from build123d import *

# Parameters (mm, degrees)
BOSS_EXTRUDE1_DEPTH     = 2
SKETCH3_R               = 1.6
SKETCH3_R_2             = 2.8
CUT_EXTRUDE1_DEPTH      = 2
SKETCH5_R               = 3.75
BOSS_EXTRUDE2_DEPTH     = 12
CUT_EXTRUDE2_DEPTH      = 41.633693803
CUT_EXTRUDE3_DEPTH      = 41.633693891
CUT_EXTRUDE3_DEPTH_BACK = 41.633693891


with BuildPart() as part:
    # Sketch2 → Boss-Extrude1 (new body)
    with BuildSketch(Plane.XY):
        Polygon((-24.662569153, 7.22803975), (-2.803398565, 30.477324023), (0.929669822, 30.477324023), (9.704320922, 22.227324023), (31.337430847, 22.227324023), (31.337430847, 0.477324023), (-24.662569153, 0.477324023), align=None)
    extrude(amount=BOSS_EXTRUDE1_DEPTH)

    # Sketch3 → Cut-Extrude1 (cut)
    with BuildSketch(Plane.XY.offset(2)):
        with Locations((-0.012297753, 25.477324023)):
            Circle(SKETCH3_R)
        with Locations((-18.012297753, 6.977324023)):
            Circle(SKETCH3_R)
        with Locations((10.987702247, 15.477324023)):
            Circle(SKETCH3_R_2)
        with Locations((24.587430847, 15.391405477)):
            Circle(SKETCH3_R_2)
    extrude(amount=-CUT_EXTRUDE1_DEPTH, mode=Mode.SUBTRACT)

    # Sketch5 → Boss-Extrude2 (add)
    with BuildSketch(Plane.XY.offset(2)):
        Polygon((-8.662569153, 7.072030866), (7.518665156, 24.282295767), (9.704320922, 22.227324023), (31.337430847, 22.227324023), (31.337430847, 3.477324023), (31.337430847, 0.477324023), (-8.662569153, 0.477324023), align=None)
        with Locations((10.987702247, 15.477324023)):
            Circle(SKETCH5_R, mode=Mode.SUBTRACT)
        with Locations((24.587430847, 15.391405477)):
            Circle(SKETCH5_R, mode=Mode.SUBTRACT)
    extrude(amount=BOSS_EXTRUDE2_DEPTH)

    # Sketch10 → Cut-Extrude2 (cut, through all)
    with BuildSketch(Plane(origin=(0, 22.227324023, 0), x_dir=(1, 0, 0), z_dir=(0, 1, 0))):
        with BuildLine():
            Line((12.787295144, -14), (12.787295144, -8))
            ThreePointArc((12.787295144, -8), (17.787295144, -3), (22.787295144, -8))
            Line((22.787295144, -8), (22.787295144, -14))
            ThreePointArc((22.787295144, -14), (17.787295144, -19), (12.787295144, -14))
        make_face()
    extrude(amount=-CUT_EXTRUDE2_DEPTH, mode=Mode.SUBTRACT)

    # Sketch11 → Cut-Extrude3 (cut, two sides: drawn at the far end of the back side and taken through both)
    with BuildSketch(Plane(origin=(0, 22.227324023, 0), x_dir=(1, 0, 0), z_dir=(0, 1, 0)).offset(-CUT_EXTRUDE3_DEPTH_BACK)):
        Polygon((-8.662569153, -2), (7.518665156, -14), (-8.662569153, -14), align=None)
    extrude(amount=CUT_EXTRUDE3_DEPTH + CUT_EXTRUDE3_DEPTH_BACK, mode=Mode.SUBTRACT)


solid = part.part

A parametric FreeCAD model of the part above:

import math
import FreeCAD as App
import Part
import Sketcher
Q = App.Units.Quantity


def add_polygon(sketch, points):
    """Adds a closed chain of lines whose ends are joined by coincident constraints."""
    first, n = sketch.GeometryCount, len(points)
    for a, b in zip(points, points[1:] + points[:1]):
        sketch.addGeometry(Part.LineSegment(App.Vector(*a, 0), App.Vector(*b, 0)), False)
    for i in range(n):
        sketch.addConstraint(Sketcher.Constraint("Coincident", first + i, 2, first + (i + 1) % n, 1))

doc = App.newDocument("Part")
body = doc.addObject("PartDesign::Body", "Body")

# Sketch on XY plane
sketch1 = doc.addObject("Sketcher::SketchObject", "Sketch")
body.addObject(sketch1)
sketch1.AttachmentSupport = (doc.XY_Plane, [""])
sketch1.MapMode = "FlatFace"
add_polygon(sketch1, [(-2.803399, 30.477324), (-24.662569, 7.22804), (-24.662569, 0.477324), (31.337431, 0.477324), (31.337431, 22.227324), (9.704321, 22.227324), (0.92967, 30.477324)])  # lines 0-6
sketch1.addConstraint(Sketcher.Constraint("Vertical", 1))
sketch1.addConstraint(Sketcher.Constraint("Horizontal", 2))
sketch1.addConstraint(Sketcher.Constraint("Vertical", 3))
sketch1.addConstraint(Sketcher.Constraint("Horizontal", 4))
sketch1.addConstraint(Sketcher.Constraint("Horizontal", 6))
sketch1.addConstraint(Sketcher.Constraint("Perpendicular", 0, 5))
sketch1.addConstraint(Sketcher.Constraint("DistanceX", 2, 1, 2, 2, Q("56 mm")))
sketch1.addConstraint(Sketcher.Constraint("DistanceY", 1, 2, 5, 2, Q("30 mm")))
sketch1.addConstraint(Sketcher.Constraint("DistanceY", 3, 1, 3, 2, Q("21.75 mm")))
sketch1.addConstraint(Sketcher.Constraint("DistanceX", 4, 2, 4, 1, Q("21.63311 mm")))
sketch1.addConstraint(Sketcher.Constraint("DistanceX", 6, 2, 6, 1, Q("3.733068 mm")))
sketch1.addConstraint(Sketcher.Constraint("DistanceX", 6, 2, -1, 1, Q("2.803399 mm")))
sketch1.addConstraint(Sketcher.Constraint("Distance", 5, Q("12.043961 mm")))
sketch1.addConstraint(Sketcher.Constraint("DistanceY", -1, 1, 0, 2, Q("7.22804 mm")))
pad1 = doc.addObject("PartDesign::Pad", "Pad")
body.addObject(pad1)
pad1.Profile = sketch1
pad1.Length = 2

# Sketch on XY plane
sketch2 = doc.addObject("Sketcher::SketchObject", "Sketch001")
body.addObject(sketch2)
sketch2.AttachmentSupport = (doc.XY_Plane, [""])
sketch2.MapMode = "FlatFace"
sketch2.AttachmentOffset = App.Placement(App.Vector(0, 0, 2), App.Rotation())
sketch2.addGeometry(Part.Circle(App.Vector(-0.012298, 25.477324, 0), App.Vector(0, 0, 1), 1.6), False)
sketch2.addGeometry(Part.Circle(App.Vector(-18.012298, 6.977324, 0), App.Vector(0, 0, 1), 1.6), False)
sketch2.addGeometry(Part.Circle(App.Vector(10.987702, 15.477324, 0), App.Vector(0, 0, 1), 2.8), False)
sketch2.addGeometry(Part.Circle(App.Vector(24.587431, 15.391405, 0), App.Vector(0, 0, 1), 2.8), False)
sketch2.addConstraint(Sketcher.Constraint("Equal", 0, 1))
sketch2.addConstraint(Sketcher.Constraint("Equal", 2, 3))
sketch2.addConstraint(Sketcher.Constraint("Diameter", 0, Q("3.2 mm")))
sketch2.addConstraint(Sketcher.Constraint("Diameter", 2, Q("5.6 mm")))
sketch2.addConstraint(Sketcher.Constraint("DistanceX", 1, 3, 0, 3, Q("18 mm")))
sketch2.addConstraint(Sketcher.Constraint("DistanceX", 0, 3, 2, 3, Q("11 mm")))
sketch2.addConstraint(Sketcher.Constraint("DistanceY", 2, 3, 0, 3, Q("10 mm")))
sketch2.addConstraint(Sketcher.Constraint("DistanceY", 1, 3, 0, 3, Q("18.5 mm")))
sketch2.addConstraint(Sketcher.Constraint("DistanceX", -1, 1, 3, 3, Q("24.587431 mm")))
sketch2.addConstraint(Sketcher.Constraint("DistanceX", 2, 3, 3, 3, Q("13.599729 mm")))
sketch2.addConstraint(Sketcher.Constraint("DistanceY", 3, 3, 2, 3, Q("0.085919 mm")))
sketch2.addConstraint(Sketcher.Constraint("DistanceY", -1, 1, 0, 3, Q("25.477324 mm")))
pocket1 = doc.addObject("PartDesign::Pocket", "Pocket")
body.addObject(pocket1)
pocket1.Profile = sketch2
pocket1.Length = 2

# Sketch on XY plane
sketch3 = doc.addObject("Sketcher::SketchObject", "Sketch002")
body.addObject(sketch3)
sketch3.AttachmentSupport = (doc.XY_Plane, [""])
sketch3.MapMode = "FlatFace"
sketch3.AttachmentOffset = App.Placement(App.Vector(0, 0, 2), App.Rotation())
add_polygon(sketch3, [(7.518665, 24.282296), (-8.662569, 7.072031), (-8.662569, 0.477324), (31.337431, 0.477324), (31.337431, 22.227324), (9.704321, 22.227324)])  # lines 0-5
sketch3.addGeometry(Part.Circle(App.Vector(24.587431, 15.391405, 0), App.Vector(0, 0, 1), 3.75), False)  # 6
sketch3.addGeometry(Part.Circle(App.Vector(10.987702, 15.477324, 0), App.Vector(0, 0, 1), 3.75), False)  # 7
sketch3.addConstraint(Sketcher.Constraint("Vertical", 1))
sketch3.addConstraint(Sketcher.Constraint("Horizontal", 2))
sketch3.addConstraint(Sketcher.Constraint("Vertical", 3))
sketch3.addConstraint(Sketcher.Constraint("Horizontal", 4))
sketch3.addConstraint(Sketcher.Constraint("Equal", 6, 7))
sketch3.addConstraint(Sketcher.Constraint("Perpendicular", 0, 5))
sketch3.addConstraint(Sketcher.Constraint("Diameter", 6, Q("7.5 mm")))
sketch3.addConstraint(Sketcher.Constraint("DistanceX", 2, 1, 2, 2, Q("40 mm")))
sketch3.addConstraint(Sketcher.Constraint("Distance", 5, Q("3 mm")))
sketch3.addConstraint(Sketcher.Constraint("DistanceY", 1, 2, 7, 3, Q("15 mm")))
sketch3.addConstraint(Sketcher.Constraint("DistanceY", 3, 1, 3, 2, Q("21.75 mm")))
sketch3.addConstraint(Sketcher.Constraint("DistanceX", 0, 2, 6, 3, Q("33.25 mm")))
sketch3.addConstraint(Sketcher.Constraint("DistanceX", 4, 2, 4, 1, Q("21.63311 mm")))
sketch3.addConstraint(Sketcher.Constraint("DistanceY", 1, 2, 1, 1, Q("6.594707 mm")))
sketch3.addConstraint(Sketcher.Constraint("DistanceX", -1, 1, 6, 3, Q("24.587431 mm")))
sketch3.addConstraint(Sketcher.Constraint("DistanceY", -1, 1, 0, 2, Q("7.072031 mm")))
sketch3.addConstraint(Sketcher.Constraint("DistanceX", 7, 3, 6, 3, Q("13.599729 mm")))
sketch3.addConstraint(Sketcher.Constraint("DistanceY", 6, 3, 7, 3, Q("0.085919 mm")))
pad2 = doc.addObject("PartDesign::Pad", "Pad001")
body.addObject(pad2)
pad2.Profile = sketch3
pad2.Length = 12

# Sketch on XZ plane
sketch4 = doc.addObject("Sketcher::SketchObject", "Sketch003")
body.addObject(sketch4)
sketch4.AttachmentSupport = (doc.XZ_Plane, [""])
sketch4.MapMode = "FlatFace"
sketch4.AttachmentOffset = App.Placement(App.Vector(0, 0, -22.227324), App.Rotation())
sketch4.addGeometry(Part.LineSegment(App.Vector(12.787295, 8, 0), App.Vector(12.787295, 14, 0)), False)
sketch4.addGeometry(Part.ArcOfCircle(Part.Circle(App.Vector(17.787295, 14, 0), App.Vector(0, 0, 1), 5), math.radians(0), math.radians(180)), False)
sketch4.addGeometry(Part.LineSegment(App.Vector(22.787295, 14, 0), App.Vector(22.787295, 8, 0)), False)
sketch4.addGeometry(Part.ArcOfCircle(Part.Circle(App.Vector(17.787295, 8, 0), App.Vector(0, 0, 1), 5), math.radians(180), math.radians(360)), False)
sketch4.addConstraint(Sketcher.Constraint("Tangent", 0, 2, 1, 2))
sketch4.addConstraint(Sketcher.Constraint("Tangent", 1, 1, 2, 1))
sketch4.addConstraint(Sketcher.Constraint("Tangent", 2, 2, 3, 2))
sketch4.addConstraint(Sketcher.Constraint("Tangent", 3, 1, 0, 1))
sketch4.addConstraint(Sketcher.Constraint("Vertical", 0))
sketch4.addConstraint(Sketcher.Constraint("Vertical", 2))
sketch4.addConstraint(Sketcher.Constraint("Radius", 1, Q("5 mm")))
sketch4.addConstraint(Sketcher.Constraint("DistanceY", 0, 1, 0, 2, Q("6 mm")))
sketch4.addConstraint(Sketcher.Constraint("DistanceY", -1, 1, 1, 3, Q("14 mm")))
sketch4.addConstraint(Sketcher.Constraint("DistanceX", -1, 1, 1, 3, Q("17.787295 mm")))
pocket2 = doc.addObject("PartDesign::Pocket", "Pocket001")
body.addObject(pocket2)
pocket2.Profile = sketch4
pocket2.Type = "ThroughAll"
pocket2.Reversed = True

# Sketch on XZ plane
sketch5 = doc.addObject("Sketcher::SketchObject", "Sketch004")
body.addObject(sketch5)
sketch5.AttachmentSupport = (doc.XZ_Plane, [""])
sketch5.MapMode = "FlatFace"
sketch5.AttachmentOffset = App.Placement(App.Vector(0, 0, -22.227324), App.Rotation())
add_polygon(sketch5, [(7.518665, 14), (-8.662569, 2), (-8.662569, 14)])  # lines 0-2
sketch5.addConstraint(Sketcher.Constraint("Vertical", 1))
sketch5.addConstraint(Sketcher.Constraint("Horizontal", 2))
sketch5.addConstraint(Sketcher.Constraint("DistanceY", 1, 1, 1, 2, Q("12 mm")))
sketch5.addConstraint(Sketcher.Constraint("DistanceY", -1, 1, 0, 2, Q("2 mm")))
sketch5.addConstraint(Sketcher.Constraint("Distance", 0, Q("20.145281 mm")))
sketch5.addConstraint(Sketcher.Constraint("DistanceX", 0, 2, -1, 1, Q("8.662569 mm")))
pocket3 = doc.addObject("PartDesign::Pocket", "Pocket002")
body.addObject(pocket3)
pocket3.Profile = sketch5
pocket3.Type = "ThroughAll"
pocket3.Midplane = True

doc.recompute()
